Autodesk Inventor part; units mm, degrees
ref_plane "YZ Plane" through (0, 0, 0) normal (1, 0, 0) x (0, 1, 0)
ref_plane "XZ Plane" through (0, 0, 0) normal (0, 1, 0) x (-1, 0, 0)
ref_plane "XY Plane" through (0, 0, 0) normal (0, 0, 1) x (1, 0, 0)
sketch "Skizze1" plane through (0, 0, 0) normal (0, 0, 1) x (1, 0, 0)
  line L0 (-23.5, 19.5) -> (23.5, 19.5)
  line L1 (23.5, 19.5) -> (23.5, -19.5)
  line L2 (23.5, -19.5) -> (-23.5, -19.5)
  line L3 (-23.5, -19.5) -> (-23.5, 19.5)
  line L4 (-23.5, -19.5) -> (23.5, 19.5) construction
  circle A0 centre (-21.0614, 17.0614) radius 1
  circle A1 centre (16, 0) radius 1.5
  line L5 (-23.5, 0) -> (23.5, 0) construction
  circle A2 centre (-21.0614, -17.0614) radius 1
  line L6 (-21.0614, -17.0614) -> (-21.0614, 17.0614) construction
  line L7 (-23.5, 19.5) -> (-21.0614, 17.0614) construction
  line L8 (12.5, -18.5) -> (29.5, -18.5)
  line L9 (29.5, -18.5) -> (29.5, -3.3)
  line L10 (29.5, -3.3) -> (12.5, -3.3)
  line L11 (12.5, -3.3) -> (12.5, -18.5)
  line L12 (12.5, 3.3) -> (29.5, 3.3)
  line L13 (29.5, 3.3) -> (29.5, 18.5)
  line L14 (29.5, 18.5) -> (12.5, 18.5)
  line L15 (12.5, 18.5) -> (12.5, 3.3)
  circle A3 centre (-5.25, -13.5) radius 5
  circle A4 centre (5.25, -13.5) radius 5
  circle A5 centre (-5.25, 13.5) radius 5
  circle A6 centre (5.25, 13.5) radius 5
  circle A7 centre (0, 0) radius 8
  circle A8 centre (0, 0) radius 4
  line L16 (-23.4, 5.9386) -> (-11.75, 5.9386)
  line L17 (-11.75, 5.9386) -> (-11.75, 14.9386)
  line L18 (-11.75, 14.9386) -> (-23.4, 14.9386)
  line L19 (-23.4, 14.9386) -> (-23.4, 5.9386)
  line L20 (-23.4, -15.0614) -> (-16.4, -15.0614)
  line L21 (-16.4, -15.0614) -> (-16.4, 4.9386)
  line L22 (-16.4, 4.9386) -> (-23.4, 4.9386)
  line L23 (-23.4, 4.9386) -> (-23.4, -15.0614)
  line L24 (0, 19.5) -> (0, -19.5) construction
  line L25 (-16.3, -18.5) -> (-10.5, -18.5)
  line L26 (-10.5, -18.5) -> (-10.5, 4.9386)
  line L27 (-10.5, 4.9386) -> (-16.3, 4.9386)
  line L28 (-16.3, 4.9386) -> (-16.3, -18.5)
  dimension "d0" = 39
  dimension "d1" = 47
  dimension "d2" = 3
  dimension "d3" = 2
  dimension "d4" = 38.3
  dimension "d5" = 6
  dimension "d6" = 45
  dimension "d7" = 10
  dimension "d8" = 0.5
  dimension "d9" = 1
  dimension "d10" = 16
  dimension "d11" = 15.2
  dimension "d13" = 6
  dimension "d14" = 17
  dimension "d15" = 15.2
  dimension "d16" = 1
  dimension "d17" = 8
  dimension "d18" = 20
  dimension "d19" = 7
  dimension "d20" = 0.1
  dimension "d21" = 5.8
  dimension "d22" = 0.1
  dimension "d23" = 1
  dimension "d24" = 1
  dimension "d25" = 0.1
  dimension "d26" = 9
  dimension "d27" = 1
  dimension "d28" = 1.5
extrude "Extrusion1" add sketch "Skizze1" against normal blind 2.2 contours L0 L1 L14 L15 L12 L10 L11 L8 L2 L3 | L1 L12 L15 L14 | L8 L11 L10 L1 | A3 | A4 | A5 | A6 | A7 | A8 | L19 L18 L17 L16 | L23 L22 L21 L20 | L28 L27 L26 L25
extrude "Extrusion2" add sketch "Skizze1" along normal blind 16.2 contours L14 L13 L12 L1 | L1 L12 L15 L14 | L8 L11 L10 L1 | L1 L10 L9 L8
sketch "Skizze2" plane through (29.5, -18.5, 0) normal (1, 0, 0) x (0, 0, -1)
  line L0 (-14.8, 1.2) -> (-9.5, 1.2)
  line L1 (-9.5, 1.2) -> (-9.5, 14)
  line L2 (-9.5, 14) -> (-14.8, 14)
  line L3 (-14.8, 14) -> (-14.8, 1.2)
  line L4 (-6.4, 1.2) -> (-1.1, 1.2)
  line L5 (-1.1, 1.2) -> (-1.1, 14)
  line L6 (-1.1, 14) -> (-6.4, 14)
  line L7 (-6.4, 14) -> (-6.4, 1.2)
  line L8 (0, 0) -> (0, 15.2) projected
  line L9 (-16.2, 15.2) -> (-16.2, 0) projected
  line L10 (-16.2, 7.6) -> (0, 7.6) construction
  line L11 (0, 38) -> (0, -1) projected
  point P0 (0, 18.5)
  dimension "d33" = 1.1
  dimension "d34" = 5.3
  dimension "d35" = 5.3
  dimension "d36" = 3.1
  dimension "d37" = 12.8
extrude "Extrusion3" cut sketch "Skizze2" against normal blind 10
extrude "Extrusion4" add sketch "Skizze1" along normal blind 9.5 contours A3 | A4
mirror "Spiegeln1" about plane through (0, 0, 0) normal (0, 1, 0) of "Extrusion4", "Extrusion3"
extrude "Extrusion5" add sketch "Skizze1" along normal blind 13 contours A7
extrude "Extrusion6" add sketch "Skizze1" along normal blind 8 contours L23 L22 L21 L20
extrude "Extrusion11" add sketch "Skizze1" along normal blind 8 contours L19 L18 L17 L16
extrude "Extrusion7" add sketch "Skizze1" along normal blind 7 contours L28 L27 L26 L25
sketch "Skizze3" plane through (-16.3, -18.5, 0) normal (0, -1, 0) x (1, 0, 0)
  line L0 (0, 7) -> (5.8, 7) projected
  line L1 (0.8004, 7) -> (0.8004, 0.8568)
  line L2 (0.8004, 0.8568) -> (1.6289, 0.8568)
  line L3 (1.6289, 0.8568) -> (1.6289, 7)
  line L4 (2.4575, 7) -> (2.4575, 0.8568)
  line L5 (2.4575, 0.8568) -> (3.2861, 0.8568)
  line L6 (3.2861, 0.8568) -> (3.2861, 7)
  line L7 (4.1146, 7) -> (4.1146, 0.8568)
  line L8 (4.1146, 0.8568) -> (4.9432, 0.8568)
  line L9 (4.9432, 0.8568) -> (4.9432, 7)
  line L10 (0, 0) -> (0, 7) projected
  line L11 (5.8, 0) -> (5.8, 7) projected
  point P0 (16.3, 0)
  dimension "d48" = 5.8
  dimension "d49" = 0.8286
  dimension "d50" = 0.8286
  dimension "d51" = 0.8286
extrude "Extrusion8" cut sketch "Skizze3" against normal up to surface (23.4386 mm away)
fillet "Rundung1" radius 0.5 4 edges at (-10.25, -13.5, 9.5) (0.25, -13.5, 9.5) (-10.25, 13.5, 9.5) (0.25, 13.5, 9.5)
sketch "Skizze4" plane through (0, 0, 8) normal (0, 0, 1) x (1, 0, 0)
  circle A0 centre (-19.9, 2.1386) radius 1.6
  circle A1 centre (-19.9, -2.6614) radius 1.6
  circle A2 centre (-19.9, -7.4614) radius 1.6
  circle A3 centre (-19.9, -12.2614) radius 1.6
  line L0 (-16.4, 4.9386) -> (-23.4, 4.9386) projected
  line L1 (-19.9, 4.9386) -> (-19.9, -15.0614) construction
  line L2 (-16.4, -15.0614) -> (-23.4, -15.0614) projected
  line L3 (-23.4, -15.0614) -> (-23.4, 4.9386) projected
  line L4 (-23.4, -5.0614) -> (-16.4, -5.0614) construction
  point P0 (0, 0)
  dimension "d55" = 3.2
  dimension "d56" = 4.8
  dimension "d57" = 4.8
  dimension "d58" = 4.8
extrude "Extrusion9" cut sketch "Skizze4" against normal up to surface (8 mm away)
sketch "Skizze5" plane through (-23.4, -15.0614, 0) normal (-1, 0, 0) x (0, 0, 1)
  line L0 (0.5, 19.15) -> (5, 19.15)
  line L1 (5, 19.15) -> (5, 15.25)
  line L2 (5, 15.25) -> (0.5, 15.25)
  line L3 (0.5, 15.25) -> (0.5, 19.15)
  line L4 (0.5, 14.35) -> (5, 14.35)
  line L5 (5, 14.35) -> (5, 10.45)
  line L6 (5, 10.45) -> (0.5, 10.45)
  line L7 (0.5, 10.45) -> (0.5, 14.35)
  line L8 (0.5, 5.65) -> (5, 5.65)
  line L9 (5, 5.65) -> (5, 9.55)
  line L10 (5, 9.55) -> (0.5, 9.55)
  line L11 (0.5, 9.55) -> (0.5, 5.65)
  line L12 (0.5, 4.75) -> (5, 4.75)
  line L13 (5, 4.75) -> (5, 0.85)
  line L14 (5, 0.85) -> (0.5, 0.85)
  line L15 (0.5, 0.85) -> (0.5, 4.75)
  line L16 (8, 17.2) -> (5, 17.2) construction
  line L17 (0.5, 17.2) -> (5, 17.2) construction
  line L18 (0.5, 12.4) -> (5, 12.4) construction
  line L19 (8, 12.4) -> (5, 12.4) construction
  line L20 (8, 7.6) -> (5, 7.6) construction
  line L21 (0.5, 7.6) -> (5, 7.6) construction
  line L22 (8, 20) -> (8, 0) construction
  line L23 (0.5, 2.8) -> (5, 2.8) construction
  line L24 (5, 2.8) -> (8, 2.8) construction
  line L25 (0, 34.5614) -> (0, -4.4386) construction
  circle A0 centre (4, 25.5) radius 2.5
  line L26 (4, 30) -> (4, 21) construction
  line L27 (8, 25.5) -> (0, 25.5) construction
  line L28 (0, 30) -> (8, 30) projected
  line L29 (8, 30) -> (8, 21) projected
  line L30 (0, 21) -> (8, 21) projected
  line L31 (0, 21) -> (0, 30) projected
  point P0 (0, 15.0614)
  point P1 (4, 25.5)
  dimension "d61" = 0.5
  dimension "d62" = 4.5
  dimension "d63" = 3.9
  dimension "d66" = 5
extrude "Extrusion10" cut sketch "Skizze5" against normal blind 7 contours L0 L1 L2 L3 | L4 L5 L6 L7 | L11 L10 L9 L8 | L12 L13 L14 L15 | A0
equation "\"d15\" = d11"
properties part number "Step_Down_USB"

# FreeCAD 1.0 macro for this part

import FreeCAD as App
import Part
import Sketcher
from FreeCAD import Vector


def edges_at(feature, points):
    """Names of the edges that pass closest to the given points."""
    edges = feature.Shape.Edges
    near = lambda p: min(range(len(edges)), key=lambda i: edges[i].distToShape(Part.Vertex(*p))[0])
    return sorted({f"Edge{near(p) + 1}" for p in points})


def add_polygon(sketch, points):
    """Adds a closed chain of lines whose ends are joined by coincident constraints."""
    first, n = sketch.GeometryCount, len(points)
    for a, b in zip(points, points[1:] + points[:1]):
        sketch.addGeometry(Part.LineSegment(App.Vector(*a, 0), App.Vector(*b, 0)), False)
    for i in range(n):
        sketch.addConstraint(Sketcher.Constraint("Coincident", first + i, 2, first + (i + 1) % n, 1))

doc = App.newDocument("Part")
body = doc.addObject("PartDesign::Body", "Body")

# Sketch on XY plane
sketch1 = doc.addObject("Sketcher::SketchObject", "Sketch")
body.addObject(sketch1)
sketch1.AttachmentSupport = (doc.XY_Plane, [""])
sketch1.MapMode = "FlatFace"
add_polygon(sketch1, [(23.5, 19.5), (-23.5, 19.5), (-23.5, -19.5), (23.5, -19.5)])  # lines 0-3
sketch1.addGeometry(Part.Circle(Vector(-21.1, -17.1, 0), Vector(0, 0, 1), 1), False)  # 4
sketch1.addGeometry(Part.Circle(Vector(-21.1, 17.1, 0), Vector(0, 0, 1), 1), False)  # 5
sketch1.addGeometry(Part.Circle(Vector(16, 0, 0), Vector(0, 0, 1), 1.5), False)  # 6
sketch1.addConstraint([
    Sketcher.Constraint("Horizontal", 0),
    Sketcher.Constraint("Vertical", 1),
    Sketcher.Constraint("Horizontal", 2),
    Sketcher.Constraint("Vertical", 3),
    Sketcher.Constraint("Equal", 4, 5),
    Sketcher.Constraint("Symmetric", 0, 2, 2, 2, -1, 1),
    Sketcher.Constraint("Symmetric", 4, 3, 5, 3, -1),
    Sketcher.Constraint("PointOnObject", 6, 3, -1),
    Sketcher.Constraint("Diameter", 4, 2.0),
    Sketcher.Constraint("Diameter", 6, 3.0),
    Sketcher.Constraint("DistanceX", 0, 2, 0, 1, 47.0),
    Sketcher.Constraint("DistanceY", 1, 2, 1, 1, 39.0),
    Sketcher.Constraint("DistanceX", -1, 1, 6, 3, 16.0),
    Sketcher.Constraint("DistanceX", 4, 3, -1, 1, 21.0614),
    Sketcher.Constraint("DistanceY", 4, 3, -1, 1, 17.0614),
])
pad1 = doc.addObject("PartDesign::Pad", "Pad")
body.addObject(pad1)
pad1.Profile = sketch1
pad1.Length = 2.2
pad1.Reversed = True

# Sketch on XY plane
sketch2 = doc.addObject("Sketcher::SketchObject", "Sketch001")
body.addObject(sketch2)
sketch2.AttachmentSupport = (doc.XY_Plane, [""])
sketch2.MapMode = "FlatFace"
add_polygon(sketch2, [(30, 18), (12, 18), (12, 3), (30, 3)])  # lines 0-3
add_polygon(sketch2, [(12, -18), (30, -18), (30, -3), (12, -3)])  # lines 4-7
sketch2.addConstraint([
    Sketcher.Constraint("Horizontal", 0),
    Sketcher.Constraint("Vertical", 1),
    Sketcher.Constraint("Horizontal", 2),
    Sketcher.Constraint("Vertical", 3),
    Sketcher.Constraint("Horizontal", 4),
    Sketcher.Constraint("Vertical", 5),
    Sketcher.Constraint("Horizontal", 6),
    Sketcher.Constraint("Vertical", 7),
    Sketcher.Constraint("Symmetric", 3, 2, 4, 2, -1),
    Sketcher.Constraint("Symmetric", 1, 2, 6, 2, -1),
    Sketcher.Constraint("DistanceX", 0, 2, 0, 1, 17.0),
    Sketcher.Constraint("DistanceY", 1, 2, 1, 1, 15.2),
    Sketcher.Constraint("DistanceY", 4, 2, 3, 2, 37.0),
    Sketcher.Constraint("DistanceX", -1, 1, 0, 2, 12.5),
])
pad2 = doc.addObject("PartDesign::Pad", "Pad001")
body.addObject(pad2)
pad2.Profile = sketch2
pad2.Length = 16.2

# Sketch on YZ plane
sketch3 = doc.addObject("Sketcher::SketchObject", "Sketch002")
body.addObject(sketch3)
sketch3.AttachmentSupport = (doc.YZ_Plane, [""])
sketch3.MapMode = "FlatFace"
sketch3.AttachmentOffset = App.Placement(Vector(0, 0, 29.5), App.Rotation())
add_polygon(sketch3, [(-4, 15), (-17, 15), (-17, 10), (-4, 10)])  # lines 0-3
add_polygon(sketch3, [(-4, 6), (-17, 6), (-17, 1), (-4, 1)])  # lines 4-7
sketch3.addConstraint([
    Sketcher.Constraint("Horizontal", 0),
    Sketcher.Constraint("Vertical", 1),
    Sketcher.Constraint("Horizontal", 2),
    Sketcher.Constraint("Vertical", 3),
    Sketcher.Constraint("Horizontal", 4),
    Sketcher.Constraint("Vertical", 5),
    Sketcher.Constraint("Horizontal", 6),
    Sketcher.Constraint("Vertical", 7),
    Sketcher.Constraint("Vertical", 1, 2, 4, 2),
    Sketcher.Constraint("Vertical", 3, 2, 6, 2),
    Sketcher.Constraint("Equal", 3, 5),
    Sketcher.Constraint("DistanceX", 0, 2, 0, 1, 12.8),
    Sketcher.Constraint("DistanceY", 1, 2, 1, 1, 5.3),
    Sketcher.Constraint("DistanceY", -1, 1, 5, 2, 1.1),
    Sketcher.Constraint("DistanceY", 4, 2, 1, 2, 3.1),
    Sketcher.Constraint("DistanceX", 0, 2, -1, 1, 17.3),
])
pocket1 = doc.addObject("PartDesign::Pocket", "Pocket")
body.addObject(pocket1)
pocket1.Profile = sketch3
pocket1.Length = 10

# Sketch on XY plane
sketch4 = doc.addObject("Sketcher::SketchObject", "Sketch003")
body.addObject(sketch4)
sketch4.AttachmentSupport = (doc.XY_Plane, [""])
sketch4.MapMode = "FlatFace"
sketch4.addGeometry([
    Part.Circle(Vector(-5, -14, 0), Vector(0, 0, 1), 5),
    Part.Circle(Vector(5, -14, 0), Vector(0, 0, 1), 5),
], False)
sketch4.addConstraint([
    Sketcher.Constraint("Equal", 0, 1),
    Sketcher.Constraint("Symmetric", 0, 3, 1, 3, -2),
    Sketcher.Constraint("Diameter", 0, 10.0),
    Sketcher.Constraint("DistanceY", 0, 3, -1, 1, 13.5),
    Sketcher.Constraint("DistanceX", 0, 3, 1, 3, 10.5),
])
pad3 = doc.addObject("PartDesign::Pad", "Pad002")
body.addObject(pad3)
pad3.Profile = sketch4
pad3.Length = 9.5
doc.recompute()

mirrored = doc.addObject("PartDesign::Mirrored", "Mirrored")
body.addObject(mirrored)
mirrored.Originals = [pad3, pocket1]
mirrored.MirrorPlane = (doc.XZ_Plane, [""])
body.Tip = mirrored

# Sketch on XY plane
sketch5 = doc.addObject("Sketcher::SketchObject", "Sketch004")
body.addObject(sketch5)
sketch5.AttachmentSupport = (doc.XY_Plane, [""])
sketch5.MapMode = "FlatFace"
sketch5.addGeometry([
    Part.Circle(Vector(0, 0, 0), Vector(0, 0, 1), 8),
    Part.Circle(Vector(0, 0, 0), Vector(0, 0, 1), 4),
], False)
sketch5.addConstraint([
    Sketcher.Constraint("Coincident", 0, 3, -1, 1),
    Sketcher.Constraint("Coincident", 1, 3, -1, 1),
    Sketcher.Constraint("Diameter", 0, 16.0),
    Sketcher.Constraint("Diameter", 1, 8.0),
])
pad4 = doc.addObject("PartDesign::Pad", "Pad003")
body.addObject(pad4)
pad4.Profile = sketch5
pad4.Length = 13

# Sketch on XY plane
sketch6 = doc.addObject("Sketcher::SketchObject", "Sketch005")
body.addObject(sketch6)
sketch6.AttachmentSupport = (doc.XY_Plane, [""])
sketch6.MapMode = "FlatFace"
add_polygon(sketch6, [(-23, 5), (-23, -15), (-16, -15), (-16, 5)])  # lines 0-3
sketch6.addConstraint([
    Sketcher.Constraint("Vertical", 0),
    Sketcher.Constraint("Horizontal", 1),
    Sketcher.Constraint("Vertical", 2),
    Sketcher.Constraint("Horizontal", 3),
    Sketcher.Constraint("DistanceX", 1, 1, 1, 2, 7.0),
    Sketcher.Constraint("DistanceY", 0, 2, 0, 1, 20.0),
    Sketcher.Constraint("DistanceX", 0, 2, -1, 1, 23.4),
    Sketcher.Constraint("DistanceY", 0, 2, -1, 1, 15.0614),
])
pad5 = doc.addObject("PartDesign::Pad", "Pad004")
body.addObject(pad5)
pad5.Profile = sketch6
pad5.Length = 8

# Sketch on XY plane
sketch7 = doc.addObject("Sketcher::SketchObject", "Sketch006")
body.addObject(sketch7)
sketch7.AttachmentSupport = (doc.XY_Plane, [""])
sketch7.MapMode = "FlatFace"
add_polygon(sketch7, [(-23, 15), (-23, 6), (-12, 6), (-12, 15)])  # lines 0-3
sketch7.addConstraint([
    Sketcher.Constraint("Vertical", 0),
    Sketcher.Constraint("Horizontal", 1),
    Sketcher.Constraint("Vertical", 2),
    Sketcher.Constraint("Horizontal", 3),
    Sketcher.Constraint("DistanceY", 0, 2, 0, 1, 9.0),
    Sketcher.Constraint("DistanceX", 1, 1, 1, 2, 11.65),
    Sketcher.Constraint("DistanceX", 0, 2, -1, 1, 23.4),
    Sketcher.Constraint("DistanceY", -1, 1, 0, 2, 5.9386),
])
pad6 = doc.addObject("PartDesign::Pad", "Pad005")
body.addObject(pad6)
pad6.Profile = sketch7
pad6.Length = 8

# Sketch on XY plane
sketch8 = doc.addObject("Sketcher::SketchObject", "Sketch007")
body.addObject(sketch8)
sketch8.AttachmentSupport = (doc.XY_Plane, [""])
sketch8.MapMode = "FlatFace"
add_polygon(sketch8, [(-16, 5), (-16, -18), (-10, -18), (-10, 5)])  # lines 0-3
sketch8.addConstraint([
    Sketcher.Constraint("Vertical", 0),
    Sketcher.Constraint("Horizontal", 1),
    Sketcher.Constraint("Vertical", 2),
    Sketcher.Constraint("Horizontal", 3),
    Sketcher.Constraint("DistanceX", 1, 1, 1, 2, 5.8),
    Sketcher.Constraint("DistanceX", 0, 2, -1, 1, 16.3),
    Sketcher.Constraint("DistanceY", 0, 2, -1, 1, 18.5),
    Sketcher.Constraint("DistanceY", 0, 2, 0, 1, 23.4386),
])
pad7 = doc.addObject("PartDesign::Pad", "Pad006")
body.addObject(pad7)
pad7.Profile = sketch8
pad7.Length = 7

# Sketch on XZ plane
sketch9 = doc.addObject("Sketcher::SketchObject", "Sketch008")
body.addObject(sketch9)
sketch9.AttachmentSupport = (doc.XZ_Plane, [""])
sketch9.MapMode = "FlatFace"
sketch9.AttachmentOffset = App.Placement(Vector(0, 0, 18.5), App.Rotation())
add_polygon(sketch9, [(-11.4, 7), (-12.2, 7), (-12.2, 0.9), (-11.4, 0.9)])  # lines 0-3
add_polygon(sketch9, [(-13, 7), (-13.8, 7), (-13.8, 0.9), (-13, 0.9)])  # lines 4-7
add_polygon(sketch9, [(-14.7, 7), (-15.5, 7), (-15.5, 0.9), (-14.7, 0.9)])  # lines 8-11
sketch9.addConstraint([
    Sketcher.Constraint("Horizontal", 0),
    Sketcher.Constraint("Vertical", 1),
    Sketcher.Constraint("Horizontal", 2),
    Sketcher.Constraint("Vertical", 3),
    Sketcher.Constraint("Horizontal", 4),
    Sketcher.Constraint("Vertical", 5),
    Sketcher.Constraint("Horizontal", 6),
    Sketcher.Constraint("Vertical", 7),
    Sketcher.Constraint("Horizontal", 8),
    Sketcher.Constraint("Vertical", 9),
    Sketcher.Constraint("Horizontal", 10),
    Sketcher.Constraint("Vertical", 11),
    Sketcher.Constraint("Horizontal", 3, 2, 4, 2),
    Sketcher.Constraint("Horizontal", 2, 2, 5, 2),
    Sketcher.Constraint("Horizontal", 7, 2, 8, 2),
    Sketcher.Constraint("Horizontal", 6, 2, 9, 2),
    Sketcher.Constraint("Equal", 2, 4),
    Sketcher.Constraint("Equal", 6, 8),
    Sketcher.Constraint("DistanceX", 0, 2, 0, 1, 0.8286),
    Sketcher.Constraint("DistanceY", -1, 1, 0, 2, 7.0),
    Sketcher.Constraint("DistanceX", 6, 2, 1, 2, 0.8285),
    Sketcher.Constraint("DistanceX", 10, 2, 5, 2, 0.8286),
    Sketcher.Constraint("DistanceY", 1, 2, 1, 1, 6.1432),
    Sketcher.Constraint("DistanceX", 6, 2, -1, 1, 13.014),
])
pocket2 = doc.addObject("PartDesign::Pocket", "Pocket001")
body.addObject(pocket2)
pocket2.Profile = sketch9
pocket2.Length = 23.4386
doc.recompute()

fillet = doc.addObject("PartDesign::Fillet", "Fillet")
body.addObject(fillet)
fillet.Base = (pocket2, edges_at(pocket2, [
    (-10.25, -13.5, 9.5),
    (0.25, -13.5, 9.5),
    (-10.25, 13.5, 9.5),
    (0.25, 13.5, 9.5),
]))
fillet.Radius = 0.5

# Sketch on XY plane
sketch10 = doc.addObject("Sketcher::SketchObject", "Sketch009")
body.addObject(sketch10)
sketch10.AttachmentSupport = (doc.XY_Plane, [""])
sketch10.MapMode = "FlatFace"
sketch10.AttachmentOffset = App.Placement(Vector(0, 0, 8), App.Rotation())
sketch10.addGeometry([
    Part.Circle(Vector(-19.9, 2.1, 0), Vector(0, 0, 1), 1.6),
    Part.Circle(Vector(-19.9, -2.7, 0), Vector(0, 0, 1), 1.6),
    Part.Circle(Vector(-19.9, -7.5, 0), Vector(0, 0, 1), 1.6),
    Part.Circle(Vector(-19.9, -12.3, 0), Vector(0, 0, 1), 1.6),
], False)
sketch10.addConstraint([
    Sketcher.Constraint("Equal", 0, 1),
    Sketcher.Constraint("Equal", 1, 2),
    Sketcher.Constraint("Equal", 2, 3),
    Sketcher.Constraint("Vertical", 0, 3, 1, 3),
    Sketcher.Constraint("Vertical", 1, 3, 2, 3),
    Sketcher.Constraint("Vertical", 2, 3, 3, 3),
    Sketcher.Constraint("Diameter", 0, 3.2),
    Sketcher.Constraint("DistanceY", 1, 3, 0, 3, 4.8),
    Sketcher.Constraint("DistanceY", 2, 3, 1, 3, 4.8),
    Sketcher.Constraint("DistanceY", 3, 3, 2, 3, 4.8),
    Sketcher.Constraint("DistanceX", 0, 3, -1, 1, 19.9),
    Sketcher.Constraint("DistanceY", -1, 1, 0, 3, 2.1386),
])
pocket3 = doc.addObject("PartDesign::Pocket", "Pocket002")
body.addObject(pocket3)
pocket3.Profile = sketch10
pocket3.Length = 8

# Sketch on YZ plane
sketch11 = doc.addObject("Sketcher::SketchObject", "Sketch010")
body.addObject(sketch11)
sketch11.AttachmentSupport = (doc.YZ_Plane, [""])
sketch11.MapMode = "FlatFace"
sketch11.AttachmentOffset = App.Placement(Vector(0, 0, -23.4), App.Rotation())
add_polygon(sketch11, [(4.1, 5), (4.1, 0.5), (0.2, 0.5), (0.2, 5)])  # lines 0-3
add_polygon(sketch11, [(-0.7, 5), (-0.7, 0.5), (-4.6, 0.5), (-4.6, 5)])  # lines 4-7
add_polygon(sketch11, [(-5.5, 0.5), (-9.4, 0.5), (-9.4, 5), (-5.5, 5)])  # lines 8-11
add_polygon(sketch11, [(-10.3, 5), (-10.3, 0.5), (-14.2, 0.5), (-14.2, 5)])  # lines 12-15
sketch11.addGeometry(Part.Circle(Vector(10.4, 4, 0), Vector(0, 0, 1), 2.5), False)  # 16
sketch11.addConstraint([
    Sketcher.Constraint("Vertical", 0),
    Sketcher.Constraint("Horizontal", 1),
    Sketcher.Constraint("Vertical", 2),
    Sketcher.Constraint("Horizontal", 3),
    Sketcher.Constraint("Vertical", 4),
    Sketcher.Constraint("Horizontal", 5),
    Sketcher.Constraint("Vertical", 6),
    Sketcher.Constraint("Horizontal", 7),
    Sketcher.Constraint("Horizontal", 8),
    Sketcher.Constraint("Vertical", 9),
    Sketcher.Constraint("Horizontal", 10),
    Sketcher.Constraint("Vertical", 11),
    Sketcher.Constraint("Vertical", 12),
    Sketcher.Constraint("Horizontal", 13),
    Sketcher.Constraint("Vertical", 14),
    Sketcher.Constraint("Horizontal", 15),
    Sketcher.Constraint("Horizontal", 1, 2, 4, 2),
    Sketcher.Constraint("Horizontal", 3, 2, 6, 2),
    Sketcher.Constraint("Horizontal", 5, 2, 8, 2),
    Sketcher.Constraint("Horizontal", 7, 2, 9, 2),
    Sketcher.Constraint("Horizontal", 11, 2, 12, 2),
    Sketcher.Constraint("Horizontal", 10, 2, 14, 2),
    Sketcher.Constraint("Equal", 3, 5),
    Sketcher.Constraint("Equal", 7, 8),
    Sketcher.Constraint("Equal", 10, 13),
    Sketcher.Constraint("Diameter", 16, 5.0),
    Sketcher.Constraint("DistanceX", 1, 2, 1, 1, 3.9),
    Sketcher.Constraint("DistanceY", 0, 2, 0, 1, 4.5),
    Sketcher.Constraint("DistanceY", -1, 1, 2, 2, 5.0),
    Sketcher.Constraint("DistanceY", -1, 1, 16, 3, 4.0),
    Sketcher.Constraint("DistanceX", 4, 2, 1, 2, 0.9),
    Sketcher.Constraint("DistanceX", 8, 2, 5, 2, 4.8),
    Sketcher.Constraint("DistanceX", 12, 2, 8, 2, 0.9),
    Sketcher.Constraint("DistanceX", 0, 2, 16, 3, 6.35),
    Sketcher.Constraint("DistanceX", -1, 1, 16, 3, 10.4386),
])
pocket4 = doc.addObject("PartDesign::Pocket", "Pocket003")
body.addObject(pocket4)
pocket4.Profile = sketch11
pocket4.Length = 7
pocket4.Reversed = True

doc.recompute()
